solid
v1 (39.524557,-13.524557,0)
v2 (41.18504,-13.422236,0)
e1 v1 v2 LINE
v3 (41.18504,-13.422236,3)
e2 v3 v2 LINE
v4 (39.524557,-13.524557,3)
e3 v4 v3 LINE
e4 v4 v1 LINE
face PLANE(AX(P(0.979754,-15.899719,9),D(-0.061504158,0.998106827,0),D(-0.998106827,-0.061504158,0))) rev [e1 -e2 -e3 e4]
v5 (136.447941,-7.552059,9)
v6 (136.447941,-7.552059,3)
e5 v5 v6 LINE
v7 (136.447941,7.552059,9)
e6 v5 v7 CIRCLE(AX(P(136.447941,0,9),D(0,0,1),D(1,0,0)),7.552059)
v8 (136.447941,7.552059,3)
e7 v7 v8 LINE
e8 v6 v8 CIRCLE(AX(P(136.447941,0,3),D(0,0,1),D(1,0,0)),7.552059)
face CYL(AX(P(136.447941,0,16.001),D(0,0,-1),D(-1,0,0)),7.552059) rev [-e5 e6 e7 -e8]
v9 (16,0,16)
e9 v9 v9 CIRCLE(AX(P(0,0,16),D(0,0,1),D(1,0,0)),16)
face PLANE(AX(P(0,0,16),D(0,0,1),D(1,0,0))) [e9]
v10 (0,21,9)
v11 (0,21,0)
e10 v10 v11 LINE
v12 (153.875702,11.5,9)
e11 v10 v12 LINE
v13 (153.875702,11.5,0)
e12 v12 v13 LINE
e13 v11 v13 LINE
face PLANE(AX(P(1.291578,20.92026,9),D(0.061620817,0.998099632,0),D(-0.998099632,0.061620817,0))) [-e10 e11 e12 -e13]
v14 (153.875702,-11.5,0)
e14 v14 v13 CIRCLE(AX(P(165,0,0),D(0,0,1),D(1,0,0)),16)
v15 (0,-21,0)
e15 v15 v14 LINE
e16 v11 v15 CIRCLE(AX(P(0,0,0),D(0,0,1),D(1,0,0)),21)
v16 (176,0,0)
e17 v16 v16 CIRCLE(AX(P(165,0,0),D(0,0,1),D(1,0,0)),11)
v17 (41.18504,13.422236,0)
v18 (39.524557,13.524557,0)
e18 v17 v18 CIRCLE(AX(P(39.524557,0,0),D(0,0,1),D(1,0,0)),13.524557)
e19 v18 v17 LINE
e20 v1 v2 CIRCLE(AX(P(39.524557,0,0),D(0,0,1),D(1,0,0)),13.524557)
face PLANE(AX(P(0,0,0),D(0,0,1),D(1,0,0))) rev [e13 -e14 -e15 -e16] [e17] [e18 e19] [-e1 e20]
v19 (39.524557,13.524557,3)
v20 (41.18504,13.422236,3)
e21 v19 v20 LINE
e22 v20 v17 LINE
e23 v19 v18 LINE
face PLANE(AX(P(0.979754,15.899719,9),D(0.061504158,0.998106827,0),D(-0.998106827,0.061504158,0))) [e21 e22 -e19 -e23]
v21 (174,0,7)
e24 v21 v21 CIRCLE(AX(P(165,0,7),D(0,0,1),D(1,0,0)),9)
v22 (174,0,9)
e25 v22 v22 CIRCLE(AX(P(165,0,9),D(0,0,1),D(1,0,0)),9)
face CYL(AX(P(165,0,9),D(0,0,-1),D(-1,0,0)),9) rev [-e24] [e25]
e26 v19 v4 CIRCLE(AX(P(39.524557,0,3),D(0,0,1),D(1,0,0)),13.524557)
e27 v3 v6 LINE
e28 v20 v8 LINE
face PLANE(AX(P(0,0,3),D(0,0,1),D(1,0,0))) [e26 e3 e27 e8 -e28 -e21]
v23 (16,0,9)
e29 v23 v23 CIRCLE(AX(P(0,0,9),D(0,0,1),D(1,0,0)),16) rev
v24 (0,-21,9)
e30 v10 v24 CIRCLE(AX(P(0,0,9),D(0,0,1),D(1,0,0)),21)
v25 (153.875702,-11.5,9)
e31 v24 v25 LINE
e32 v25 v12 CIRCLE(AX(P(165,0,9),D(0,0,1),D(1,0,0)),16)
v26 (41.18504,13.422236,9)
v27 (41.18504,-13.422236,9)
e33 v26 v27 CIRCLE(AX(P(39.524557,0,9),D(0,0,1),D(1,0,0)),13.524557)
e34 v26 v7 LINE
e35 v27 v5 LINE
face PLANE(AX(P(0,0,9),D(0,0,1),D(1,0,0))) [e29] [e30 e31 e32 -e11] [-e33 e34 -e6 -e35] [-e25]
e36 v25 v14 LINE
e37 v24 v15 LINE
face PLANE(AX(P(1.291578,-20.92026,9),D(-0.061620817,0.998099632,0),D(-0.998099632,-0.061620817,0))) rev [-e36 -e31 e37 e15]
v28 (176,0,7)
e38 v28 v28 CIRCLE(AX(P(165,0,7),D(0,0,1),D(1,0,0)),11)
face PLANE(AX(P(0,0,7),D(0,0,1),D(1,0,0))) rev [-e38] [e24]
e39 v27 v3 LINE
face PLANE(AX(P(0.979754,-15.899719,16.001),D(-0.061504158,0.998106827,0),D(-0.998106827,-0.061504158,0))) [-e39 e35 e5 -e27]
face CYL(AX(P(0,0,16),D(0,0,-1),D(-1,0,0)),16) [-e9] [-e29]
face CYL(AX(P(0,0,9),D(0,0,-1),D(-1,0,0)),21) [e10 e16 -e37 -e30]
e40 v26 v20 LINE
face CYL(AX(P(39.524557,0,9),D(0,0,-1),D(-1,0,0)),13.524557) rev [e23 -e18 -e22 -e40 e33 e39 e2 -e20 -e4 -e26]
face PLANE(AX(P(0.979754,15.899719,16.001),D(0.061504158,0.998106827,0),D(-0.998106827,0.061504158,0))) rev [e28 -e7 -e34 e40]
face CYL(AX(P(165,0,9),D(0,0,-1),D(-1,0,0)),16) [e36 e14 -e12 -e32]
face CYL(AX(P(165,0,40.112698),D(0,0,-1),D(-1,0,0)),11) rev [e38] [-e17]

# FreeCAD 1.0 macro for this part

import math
import FreeCAD as App
import Part
import Sketcher

V = App.Vector
Q = App.Units.Quantity

doc = App.newDocument("Part")
params = doc.addObject("Spreadsheet::Sheet", "Params")
for row, (alias, value) in enumerate([
    ("sketch1_diameter", "18 mm"),
    ("sketch1_radius", "16 mm"),
    ("sketch1_radius2", "21 mm"),
    ("pad1_length", "9 mm"),
    ("sketch2_diameter", "32 mm"),
    ("pad2_length", "16 mm"),
    ("sketch3_width", "118 mm"),
    ("sketch4_width", "118 mm"),
    ("sketch5_diameter", "22 mm"),
    ("pocket3_length", "7 mm"),
], start=1):
    params.set(f"A{row}", alias)
    params.set(f"B{row}", "=" + value)
    params.setAlias(f"B{row}", alias)

body = doc.addObject("PartDesign::Body", "Body")

# Sketch on XY plane
sketch1 = body.newObject("Sketcher::SketchObject", "Sketch")
sketch1.AttachmentSupport = (doc.getObject("XY_Plane"), [""])
sketch1.MapMode = "FlatFace"
sketch1.addGeometry([
    Part.LineSegment(V(0, -21, 0), V(153.9, -11.5, 0)),  # 0
    Part.ArcOfCircle(Part.Circle(V(165, 0, 0), V(0, 0, 1), 16), math.radians(-134), math.radians(134)),  # 1
    Part.LineSegment(V(153.9, 11.5, 0), V(0, 21, 0)),  # 2
    Part.ArcOfCircle(Part.Circle(V(0, 0, 0), V(0, 0, 1), 21), math.radians(90), math.radians(270)),  # 3
    Part.LineSegment(V(39.5, -13.5, 0), V(41.2, -13.4, 0)),  # 4
    Part.ArcOfCircle(Part.Circle(V(39.5, 0, 0), V(0, 0, 1), 13.5), math.radians(-90), math.radians(-82.95)),  # 5
    Part.LineSegment(V(41.2, 13.4, 0), V(39.5, 13.5, 0)),  # 6
    Part.ArcOfCircle(Part.Circle(V(39.5, 0, 0), V(0, 0, 1), 13.5), math.radians(82.95), math.radians(90)),  # 7
    Part.Circle(V(165, 0, 0), V(0, 0, 1), 9),  # 8
], False)
sketch1.addConstraint([
    Sketcher.Constraint("Coincident", 0, 2, 1, 1),
    Sketcher.Constraint("Coincident", 1, 2, 2, 1),
    Sketcher.Constraint("Coincident", 2, 2, 3, 1),
    Sketcher.Constraint("Coincident", 3, 2, 0, 1),
    Sketcher.Constraint("Coincident", 4, 1, 5, 1),
    Sketcher.Constraint("Coincident", 5, 2, 4, 2),
    Sketcher.Constraint("Coincident", 6, 1, 7, 1),
    Sketcher.Constraint("Coincident", 7, 2, 6, 2),
    Sketcher.Constraint("Coincident", 3, 3, -1, 1),
    Sketcher.Constraint("Coincident", 7, 3, 5, 3),
    Sketcher.Constraint("Coincident", 8, 3, 1, 3),
    Sketcher.Constraint("Equal", 5, 7),
    Sketcher.Constraint("Symmetric", 0, 2, 1, 2, -1),
    Sketcher.Constraint("Symmetric", 5, 2, 6, 1, -1),
    Sketcher.Constraint("PointOnObject", 2, 2, -2),
    Sketcher.Constraint("PointOnObject", 3, 2, -2),
    Sketcher.Constraint("Vertical", 7, 3, 4, 1),
    Sketcher.Constraint("Vertical", 4, 1, 7, 2),
    Sketcher.Constraint("Diameter", 8, Q("18 mm")),
    Sketcher.Constraint("Radius", 1, Q("16 mm")),
    Sketcher.Constraint("Radius", 3, Q("21 mm")),
    Sketcher.Constraint("DistanceX", -1, 1, 1, 3, Q("165 mm")),
    Sketcher.Constraint("DistanceY", 0, 2, 1, 2, Q("23 mm")),
    Sketcher.Constraint("Radius", 5, Q("13.524557 mm")),
    Sketcher.Constraint("DistanceX", -1, 1, 5, 2, Q("41.18504 mm")),
    Sketcher.Constraint("DistanceY", 4, 1, 5, 2, Q("0.10232 mm")),
])
sketch1.setExpression("Constraints[18]", "Params.sketch1_diameter")
sketch1.setExpression("Constraints[19]", "Params.sketch1_radius")
sketch1.setExpression("Constraints[20]", "Params.sketch1_radius2")
pad1 = body.newObject("PartDesign::Pad", "Pad")
pad1.Profile = sketch1
pad1.setExpression("Length", "Params.pad1_length")

# Sketch on XY plane
sketch2 = body.newObject("Sketcher::SketchObject", "Sketch001")
sketch2.AttachmentSupport = (doc.getObject("XY_Plane"), [""])
sketch2.MapMode = "FlatFace"
sketch2.addGeometry(Part.Circle(V(0, 0, 0), V(0, 0, 1), 16), False)
sketch2.addConstraint([
    Sketcher.Constraint("Coincident", 0, 3, -1, 1),
    Sketcher.Constraint("Diameter", 0, Q("32 mm")),
])
sketch2.setExpression("Constraints[1]", "Params.sketch2_diameter")
pad2 = body.newObject("PartDesign::Pad", "Pad001")
pad2.Profile = sketch2
pad2.setExpression("Length", "Params.pad2_length")

# Sketch on XY plane
sketch3 = body.newObject("Sketcher::SketchObject", "Sketch002")
sketch3.AttachmentSupport = (doc.getObject("XY_Plane"), [""])
sketch3.MapMode = "FlatFace"
sketch3.AttachmentOffset = App.Placement(V(0, 0, 3), App.Rotation())
sketch3.addGeometry([
    Part.ArcOfCircle(Part.Circle(V(39.5, 0, 0), V(0, 0, 1), 13.5), math.radians(90), math.radians(180)),  # 0
    Part.LineSegment(V(26, 0, 0), V(144, 0, 0)),  # 1
    Part.ArcOfCircle(Part.Circle(V(136.4, 0, 0), V(0, 0, 1), 7.6), math.radians(0), math.radians(90)),  # 2
    Part.LineSegment(V(136.4, 7.6, 0), V(41.2, 13.4, 0)),  # 3
    Part.LineSegment(V(41.2, 13.4, 0), V(39.5, 13.5, 0)),  # 4
], False)
sketch3.addConstraint([
    Sketcher.Constraint("Coincident", 0, 2, 1, 1),
    Sketcher.Constraint("Coincident", 1, 2, 2, 1),
    Sketcher.Constraint("Coincident", 2, 2, 3, 1),
    Sketcher.Constraint("Coincident", 3, 2, 4, 1),
    Sketcher.Constraint("Coincident", 4, 2, 0, 1),
    Sketcher.Constraint("Horizontal", 1),
    Sketcher.Constraint("PointOnObject", 0, 3, -1),
    Sketcher.Constraint("PointOnObject", 2, 3, -1),
    Sketcher.Constraint("PointOnObject", 0, 2, -1),
    Sketcher.Constraint("Parallel", 3, 4),
    Sketcher.Constraint("Vertical", 0, 3, 4, 2),
    Sketcher.Constraint("DistanceX", 1, 1, 1, 2, Q("118 mm")),
    Sketcher.Constraint("DistanceX", -1, 1, 0, 2, Q("26 mm")),
    Sketcher.Constraint("Radius", 2, Q("7.552059 mm")),
    Sketcher.Constraint("Radius", 0, Q("13.524557 mm")),
    Sketcher.Constraint("DistanceX", 3, 2, 2, 2, Q("95.262901 mm")),
    Sketcher.Constraint("DistanceX", 3, 2, 2, 3, Q("95.262901 mm")),
])
sketch3.setExpression("Constraints[11]", "Params.sketch3_width")
pocket1 = body.newObject("PartDesign::Pocket", "Pocket")
pocket1.Profile = sketch3
pocket1.Type = "UpToFirst"
pocket1.Reversed = True

# Sketch on XY plane
sketch4 = body.newObject("Sketcher::SketchObject", "Sketch003")
sketch4.AttachmentSupport = (doc.getObject("XY_Plane"), [""])
sketch4.MapMode = "FlatFace"
sketch4.AttachmentOffset = App.Placement(V(0, 0, 3), App.Rotation())
sketch4.addGeometry([
    Part.LineSegment(V(144, 0, 0), V(26, 0, 0)),  # 0
    Part.ArcOfCircle(Part.Circle(V(39.5, 0, 0), V(0, 0, 1), 13.5), math.radians(180), math.radians(270)),  # 1
    Part.LineSegment(V(39.5, -13.5, 0), V(41.2, -13.4, 0)),  # 2
    Part.LineSegment(V(41.2, -13.4, 0), V(136.4, -7.6, 0)),  # 3
    Part.ArcOfCircle(Part.Circle(V(136.4, 0, 0), V(0, 0, 1), 7.6), math.radians(-90), math.radians(0)),  # 4
], False)
sketch4.addConstraint([
    Sketcher.Constraint("Coincident", 0, 2, 1, 1),
    Sketcher.Constraint("Coincident", 1, 2, 2, 1),
    Sketcher.Constraint("Coincident", 2, 2, 3, 1),
    Sketcher.Constraint("Coincident", 3, 2, 4, 1),
    Sketcher.Constraint("Coincident", 4, 2, 0, 1),
    Sketcher.Constraint("Horizontal", 0),
    Sketcher.Constraint("PointOnObject", 1, 3, -1),
    Sketcher.Constraint("PointOnObject", 4, 3, -1),
    Sketcher.Constraint("PointOnObject", 0, 2, -1),
    Sketcher.Constraint("Parallel", 2, 3),
    Sketcher.Constraint("Vertical", 4, 3, 3, 2),
    Sketcher.Constraint("DistanceX", 0, 2, 0, 1, Q("118 mm")),
    Sketcher.Constraint("DistanceX", -1, 1, 0, 2, Q("26 mm")),
    Sketcher.Constraint("Radius", 4, Q("7.552059 mm")),
    Sketcher.Constraint("Radius", 1, Q("13.524557 mm")),
    Sketcher.Constraint("DistanceX", 2, 2, 4, 3, Q("95.262901 mm")),
    Sketcher.Constraint("DistanceY", 1, 2, 2, 2, Q("0.10232 mm")),
])
sketch4.setExpression("Constraints[11]", "Params.sketch4_width")
pocket2 = body.newObject("PartDesign::Pocket", "Pocket001")
pocket2.Profile = sketch4
pocket2.Type = "UpToFirst"
pocket2.Reversed = True

# Sketch on XY plane
sketch5 = body.newObject("Sketcher::SketchObject", "Sketch004")
sketch5.AttachmentSupport = (doc.getObject("XY_Plane"), [""])
sketch5.MapMode = "FlatFace"
sketch5.addGeometry(Part.Circle(V(165, 0, 0), V(0, 0, 1), 11), False)
sketch5.addConstraint([
    Sketcher.Constraint("PointOnObject", 0, 3, -1),
    Sketcher.Constraint("Diameter", 0, Q("22 mm")),
    Sketcher.Constraint("DistanceX", -1, 1, 0, 3, Q("165 mm")),
])
sketch5.setExpression("Constraints[1]", "Params.sketch5_diameter")
pocket3 = body.newObject("PartDesign::Pocket", "Pocket002")
pocket3.Profile = sketch5
pocket3.setExpression("Length", "Params.pocket3_length")
pocket3.Reversed = True

doc.recompute()
